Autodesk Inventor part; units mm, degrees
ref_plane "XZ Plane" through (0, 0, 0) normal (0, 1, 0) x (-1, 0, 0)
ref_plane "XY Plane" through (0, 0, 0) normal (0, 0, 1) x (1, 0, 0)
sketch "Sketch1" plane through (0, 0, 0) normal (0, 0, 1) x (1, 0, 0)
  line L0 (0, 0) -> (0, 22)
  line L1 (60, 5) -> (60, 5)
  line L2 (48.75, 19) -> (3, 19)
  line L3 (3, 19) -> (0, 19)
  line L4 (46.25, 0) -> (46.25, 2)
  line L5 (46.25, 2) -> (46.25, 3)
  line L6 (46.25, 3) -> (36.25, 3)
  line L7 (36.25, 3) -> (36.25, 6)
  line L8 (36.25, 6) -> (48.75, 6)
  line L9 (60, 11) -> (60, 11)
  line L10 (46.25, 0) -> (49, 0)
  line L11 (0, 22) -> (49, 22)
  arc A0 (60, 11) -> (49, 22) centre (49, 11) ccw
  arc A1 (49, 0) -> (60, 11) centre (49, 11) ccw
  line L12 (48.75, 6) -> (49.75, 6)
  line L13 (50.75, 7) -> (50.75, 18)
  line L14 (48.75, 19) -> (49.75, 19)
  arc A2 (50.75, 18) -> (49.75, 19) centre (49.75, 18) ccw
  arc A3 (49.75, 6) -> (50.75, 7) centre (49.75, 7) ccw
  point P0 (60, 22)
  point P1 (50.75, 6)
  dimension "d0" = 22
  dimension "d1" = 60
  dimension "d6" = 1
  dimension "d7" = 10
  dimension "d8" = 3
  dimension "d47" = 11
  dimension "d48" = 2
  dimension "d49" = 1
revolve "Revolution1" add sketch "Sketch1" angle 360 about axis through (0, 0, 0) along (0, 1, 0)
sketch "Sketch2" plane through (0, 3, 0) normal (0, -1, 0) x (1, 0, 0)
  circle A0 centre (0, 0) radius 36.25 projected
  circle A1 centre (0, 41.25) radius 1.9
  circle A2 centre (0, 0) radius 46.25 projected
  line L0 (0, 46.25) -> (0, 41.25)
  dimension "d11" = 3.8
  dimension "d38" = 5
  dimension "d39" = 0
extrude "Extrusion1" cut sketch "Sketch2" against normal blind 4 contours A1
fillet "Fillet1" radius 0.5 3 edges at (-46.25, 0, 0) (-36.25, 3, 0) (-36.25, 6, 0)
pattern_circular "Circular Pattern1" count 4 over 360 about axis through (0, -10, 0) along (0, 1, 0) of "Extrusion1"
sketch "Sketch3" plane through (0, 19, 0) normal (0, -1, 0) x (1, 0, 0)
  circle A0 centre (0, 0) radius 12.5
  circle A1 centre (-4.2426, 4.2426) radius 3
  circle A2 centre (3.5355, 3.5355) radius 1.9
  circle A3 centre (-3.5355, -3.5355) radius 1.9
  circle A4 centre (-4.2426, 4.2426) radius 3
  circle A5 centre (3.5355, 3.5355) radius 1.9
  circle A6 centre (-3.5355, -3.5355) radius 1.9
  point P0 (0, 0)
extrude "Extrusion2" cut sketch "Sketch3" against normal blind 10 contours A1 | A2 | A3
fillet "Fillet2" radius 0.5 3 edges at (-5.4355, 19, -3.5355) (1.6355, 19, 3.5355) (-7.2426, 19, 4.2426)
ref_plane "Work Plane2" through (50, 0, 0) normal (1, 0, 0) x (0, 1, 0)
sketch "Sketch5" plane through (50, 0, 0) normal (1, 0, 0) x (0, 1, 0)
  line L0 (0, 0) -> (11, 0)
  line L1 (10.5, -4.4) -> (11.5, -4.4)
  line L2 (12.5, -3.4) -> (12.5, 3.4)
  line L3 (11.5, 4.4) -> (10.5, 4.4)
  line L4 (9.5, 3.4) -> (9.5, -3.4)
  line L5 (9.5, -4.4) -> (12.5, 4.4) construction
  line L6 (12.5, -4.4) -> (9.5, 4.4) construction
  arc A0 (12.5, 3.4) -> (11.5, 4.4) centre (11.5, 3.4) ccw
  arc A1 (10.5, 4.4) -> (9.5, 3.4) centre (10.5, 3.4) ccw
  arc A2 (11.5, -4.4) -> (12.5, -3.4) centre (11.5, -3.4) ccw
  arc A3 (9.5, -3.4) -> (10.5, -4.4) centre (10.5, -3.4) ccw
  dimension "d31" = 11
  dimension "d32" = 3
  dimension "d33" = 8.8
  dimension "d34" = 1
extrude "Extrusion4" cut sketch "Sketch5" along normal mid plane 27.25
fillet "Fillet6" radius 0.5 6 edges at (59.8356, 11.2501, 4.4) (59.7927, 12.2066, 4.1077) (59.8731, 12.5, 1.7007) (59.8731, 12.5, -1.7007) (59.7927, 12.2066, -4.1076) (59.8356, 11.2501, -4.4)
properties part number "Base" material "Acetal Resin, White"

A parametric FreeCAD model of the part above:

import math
import FreeCAD as App
import Part
import Sketcher

V = App.Vector
Q = App.Units.Quantity


def edges_at(feature, points):
    """Names of the edges that pass closest to the given points."""
    edges = feature.Shape.Edges
    near = lambda p: min(range(len(edges)), key=lambda i: edges[i].distToShape(Part.Vertex(*p))[0])
    return sorted({f"Edge{near(p) + 1}" for p in points})

doc = App.newDocument("Part")
body = doc.addObject("PartDesign::Body", "Body")

sketch1 = doc.addObject("Sketcher::SketchObject", "Sketch")
body.addObject(sketch1)
sketch1.AttachmentSupport = (doc.XY_Plane, [""])
sketch1.MapMode = "FlatFace"
sketch1.addGeometry([
    Part.LineSegment(V(0, 22, 0), V(0, 19, 0)),
    Part.LineSegment(V(0, 19, 0), V(49.8, 19, 0)),
    Part.ArcOfCircle(Part.Circle(V(49.8, 18, 0), V(0, 0, 1), 1), math.radians(0), math.radians(90)),
    Part.LineSegment(V(50.8, 18, 0), V(50.8, 7, 0)),
    Part.ArcOfCircle(Part.Circle(V(49.8, 7, 0), V(0, 0, 1), 1), math.radians(-90), math.radians(0)),
    Part.LineSegment(V(49.8, 6, 0), V(36.2, 6, 0)),
    Part.LineSegment(V(36.2, 6, 0), V(36.2, 3, 0)),
    Part.LineSegment(V(36.2, 3, 0), V(46.2, 3, 0)),
    Part.LineSegment(V(46.2, 3, 0), V(46.2, 0, 0)),
    Part.LineSegment(V(46.2, 0, 0), V(49, 0, 0)),
    Part.ArcOfCircle(Part.Circle(V(49, 11, 0), V(0, 0, 1), 11), math.radians(-90), math.radians(90)),
    Part.LineSegment(V(49, 22, 0), V(0, 22, 0)),
], False)
sketch1.addConstraint([
    Sketcher.Constraint("Coincident", 0, 2, 1, 1),
    Sketcher.Constraint("Tangent", 1, 2, 2, 2),
    Sketcher.Constraint("Tangent", 2, 1, 3, 1),
    Sketcher.Constraint("Tangent", 3, 2, 4, 2),
    Sketcher.Constraint("Tangent", 4, 1, 5, 1),
    Sketcher.Constraint("Coincident", 5, 2, 6, 1),
    Sketcher.Constraint("Coincident", 6, 2, 7, 1),
    Sketcher.Constraint("Coincident", 7, 2, 8, 1),
    Sketcher.Constraint("Coincident", 8, 2, 9, 1),
    Sketcher.Constraint("Tangent", 9, 2, 10, 1),
    Sketcher.Constraint("Tangent", 10, 2, 11, 1),
    Sketcher.Constraint("Coincident", 11, 2, 0, 1),
    Sketcher.Constraint("Vertical", 0),
    Sketcher.Constraint("Horizontal", 1),
    Sketcher.Constraint("Vertical", 3),
    Sketcher.Constraint("Horizontal", 5),
    Sketcher.Constraint("Vertical", 6),
    Sketcher.Constraint("Horizontal", 7),
    Sketcher.Constraint("Vertical", 8),
    Sketcher.Constraint("Horizontal", 9),
    Sketcher.Constraint("Horizontal", 11),
    Sketcher.Constraint("Equal", 2, 4),
    Sketcher.Constraint("PointOnObject", 0, 2, -2),
    Sketcher.Constraint("PointOnObject", 8, 2, -1),
    Sketcher.Constraint("Equal", 0, 6),
    Sketcher.Constraint("Equal", 6, 8),
    Sketcher.Constraint("Radius", 2, Q("1 mm")),
    Sketcher.Constraint("Radius", 10, Q("11 mm")),
    Sketcher.Constraint("DistanceX", 7, 1, 7, 2, Q("10 mm")),
    Sketcher.Constraint("DistanceY", 0, 2, 0, 1, Q("3 mm")),
    Sketcher.Constraint("DistanceX", 11, 2, 11, 1, Q("49 mm")),
    Sketcher.Constraint("DistanceX", 5, 2, 5, 1, Q("13.5 mm")),
    Sketcher.Constraint("DistanceX", 1, 1, 1, 2, Q("49.75 mm")),
])
revolution = doc.addObject("PartDesign::Revolution", "Revolution")
body.addObject(revolution)
revolution.Profile = sketch1
revolution.ReferenceAxis = (sketch1, ["V_Axis"])
revolution.Angle = 360

sketch2 = doc.addObject("Sketcher::SketchObject", "Sketch001")
body.addObject(sketch2)
sketch2.AttachmentSupport = (doc.XZ_Plane, [""])
sketch2.MapMode = "FlatFace"
sketch2.AttachmentOffset = App.Placement(V(0, 0, -3), App.Rotation())
sketch2.addGeometry(Part.Circle(V(0, 41.2, 0), V(0, 0, 1), 1.9), False)
sketch2.addConstraint([
    Sketcher.Constraint("PointOnObject", 0, 3, -2),
    Sketcher.Constraint("Diameter", 0, Q("3.8 mm")),
    Sketcher.Constraint("DistanceY", -1, 1, 0, 3, Q("41.25 mm")),
])
pocket1 = doc.addObject("PartDesign::Pocket", "Pocket")
body.addObject(pocket1)
pocket1.Profile = sketch2
pocket1.Length = 4
doc.recompute()

fillet = doc.addObject("PartDesign::Fillet", "Fillet")
body.addObject(fillet)
fillet.Base = (pocket1, edges_at(pocket1, [(-46.25, 0, 0), (-36.25, 3, 0), (-36.25, 6, 0)]))
fillet.Radius = 0.5
doc.recompute()

polarpattern = doc.addObject("PartDesign::PolarPattern", "PolarPattern")
body.addObject(polarpattern)
polarpattern.Originals = [pocket1]
polarpattern.Axis = (doc.Y_Axis, [""])
polarpattern.Angle = 360
polarpattern.Occurrences = 4
body.Tip = polarpattern

sketch3 = doc.addObject("Sketcher::SketchObject", "Sketch002")
body.addObject(sketch3)
sketch3.AttachmentSupport = (doc.XZ_Plane, [""])
sketch3.MapMode = "FlatFace"
sketch3.AttachmentOffset = App.Placement(V(0, 0, -19), App.Rotation())
sketch3.addGeometry([
    Part.Circle(V(-4.2, 4.2, 0), V(0, 0, 1), 3),
    Part.Circle(V(3.5, 3.5, 0), V(0, 0, 1), 1.9),
    Part.Circle(V(-3.5, -3.5, 0), V(0, 0, 1), 1.9),
], False)
sketch3.addConstraint([
    Sketcher.Constraint("Equal", 1, 2),
    Sketcher.Constraint("Symmetric", 1, 3, 2, 3, -1, 1),
    Sketcher.Constraint("Diameter", 0, Q("6 mm")),
    Sketcher.Constraint("Diameter", 1, Q("3.8 mm")),
    Sketcher.Constraint("DistanceX", 0, 3, 1, 3, Q("7.778 mm")),
    Sketcher.Constraint("DistanceY", 1, 3, 0, 3, Q("0.707 mm")),
    Sketcher.Constraint("DistanceX", 0, 3, 2, 3, Q("0.707 mm")),
    Sketcher.Constraint("DistanceY", 2, 3, 0, 3, Q("7.778 mm")),
])
pocket2 = doc.addObject("PartDesign::Pocket", "Pocket001")
body.addObject(pocket2)
pocket2.Profile = sketch3
pocket2.Length = 10
doc.recompute()

fillet2 = doc.addObject("PartDesign::Fillet", "Fillet001")
body.addObject(fillet2)
fillet2.Base = (pocket2, edges_at(pocket2, [(-5.436, 19, -3.535), (1.635, 19, 3.535), (-7.243, 19, 4.243)]))
fillet2.Radius = 0.5

sketch4 = doc.addObject("Sketcher::SketchObject", "Sketch003")
body.addObject(sketch4)
sketch4.AttachmentSupport = (doc.YZ_Plane, [""])
sketch4.MapMode = "FlatFace"
sketch4.AttachmentOffset = App.Placement(V(0, 0, 50), App.Rotation())
sketch4.addGeometry([
    Part.ArcOfCircle(Part.Circle(V(10.5, -3.4, 0), V(0, 0, 1), 1), math.radians(180), math.radians(270)),
    Part.LineSegment(V(10.5, -4.4, 0), V(11.5, -4.4, 0)),
    Part.ArcOfCircle(Part.Circle(V(11.5, -3.4, 0), V(0, 0, 1), 1), math.radians(-90), math.radians(0)),
    Part.LineSegment(V(12.5, -3.4, 0), V(12.5, 3.4, 0)),
    Part.ArcOfCircle(Part.Circle(V(11.5, 3.4, 0), V(0, 0, 1), 1), math.radians(0), math.radians(90)),
    Part.LineSegment(V(11.5, 4.4, 0), V(10.5, 4.4, 0)),
    Part.ArcOfCircle(Part.Circle(V(10.5, 3.4, 0), V(0, 0, 1), 1), math.radians(90), math.radians(180)),
    Part.LineSegment(V(9.5, 3.4, 0), V(9.5, -3.4, 0)),
], False)
sketch4.addConstraint([
    Sketcher.Constraint("Tangent", 0, 2, 1, 1),
    Sketcher.Constraint("Tangent", 1, 2, 2, 1),
    Sketcher.Constraint("Tangent", 2, 2, 3, 1),
    Sketcher.Constraint("Tangent", 3, 2, 4, 1),
    Sketcher.Constraint("Tangent", 4, 2, 5, 1),
    Sketcher.Constraint("Tangent", 5, 2, 6, 1),
    Sketcher.Constraint("Tangent", 6, 2, 7, 1),
    Sketcher.Constraint("Tangent", 7, 2, 0, 1),
    Sketcher.Constraint("Horizontal", 1),
    Sketcher.Constraint("Vertical", 3),
    Sketcher.Constraint("Horizontal", 5),
    Sketcher.Constraint("Vertical", 7),
    Sketcher.Constraint("Equal", 0, 2),
    Sketcher.Constraint("Equal", 2, 4),
    Sketcher.Constraint("Equal", 4, 6),
    Sketcher.Constraint("Radius", 0, Q("1 mm")),
    Sketcher.Constraint("DistanceX", 1, 1, 1, 2, Q("1 mm")),
    Sketcher.Constraint("DistanceY", 3, 1, 3, 2, Q("6.8 mm")),
    Sketcher.Constraint("DistanceX", -1, 1, 0, 3, Q("10.5 mm")),
    Sketcher.Constraint("DistanceY", 0, 3, -1, 1, Q("3.4 mm")),
])
pocket3 = doc.addObject("PartDesign::Pocket", "Pocket002")
body.addObject(pocket3)
pocket3.Profile = sketch4
pocket3.Length = 27.25
pocket3.Midplane = True
doc.recompute()

fillet3 = doc.addObject("PartDesign::Fillet", "Fillet002")
body.addObject(fillet3)
fillet3.Base = (pocket3, edges_at(pocket3, [
    (59.836, 11.25, 4.4),
    (59.793, 12.207, 4.108),
    (59.873, 12.5, 1.701),
    (59.873, 12.5, -1.701),
    (59.793, 12.207, -4.108),
    (59.836, 11.25, -4.4),
]))
fillet3.Radius = 0.5

doc.recompute()
